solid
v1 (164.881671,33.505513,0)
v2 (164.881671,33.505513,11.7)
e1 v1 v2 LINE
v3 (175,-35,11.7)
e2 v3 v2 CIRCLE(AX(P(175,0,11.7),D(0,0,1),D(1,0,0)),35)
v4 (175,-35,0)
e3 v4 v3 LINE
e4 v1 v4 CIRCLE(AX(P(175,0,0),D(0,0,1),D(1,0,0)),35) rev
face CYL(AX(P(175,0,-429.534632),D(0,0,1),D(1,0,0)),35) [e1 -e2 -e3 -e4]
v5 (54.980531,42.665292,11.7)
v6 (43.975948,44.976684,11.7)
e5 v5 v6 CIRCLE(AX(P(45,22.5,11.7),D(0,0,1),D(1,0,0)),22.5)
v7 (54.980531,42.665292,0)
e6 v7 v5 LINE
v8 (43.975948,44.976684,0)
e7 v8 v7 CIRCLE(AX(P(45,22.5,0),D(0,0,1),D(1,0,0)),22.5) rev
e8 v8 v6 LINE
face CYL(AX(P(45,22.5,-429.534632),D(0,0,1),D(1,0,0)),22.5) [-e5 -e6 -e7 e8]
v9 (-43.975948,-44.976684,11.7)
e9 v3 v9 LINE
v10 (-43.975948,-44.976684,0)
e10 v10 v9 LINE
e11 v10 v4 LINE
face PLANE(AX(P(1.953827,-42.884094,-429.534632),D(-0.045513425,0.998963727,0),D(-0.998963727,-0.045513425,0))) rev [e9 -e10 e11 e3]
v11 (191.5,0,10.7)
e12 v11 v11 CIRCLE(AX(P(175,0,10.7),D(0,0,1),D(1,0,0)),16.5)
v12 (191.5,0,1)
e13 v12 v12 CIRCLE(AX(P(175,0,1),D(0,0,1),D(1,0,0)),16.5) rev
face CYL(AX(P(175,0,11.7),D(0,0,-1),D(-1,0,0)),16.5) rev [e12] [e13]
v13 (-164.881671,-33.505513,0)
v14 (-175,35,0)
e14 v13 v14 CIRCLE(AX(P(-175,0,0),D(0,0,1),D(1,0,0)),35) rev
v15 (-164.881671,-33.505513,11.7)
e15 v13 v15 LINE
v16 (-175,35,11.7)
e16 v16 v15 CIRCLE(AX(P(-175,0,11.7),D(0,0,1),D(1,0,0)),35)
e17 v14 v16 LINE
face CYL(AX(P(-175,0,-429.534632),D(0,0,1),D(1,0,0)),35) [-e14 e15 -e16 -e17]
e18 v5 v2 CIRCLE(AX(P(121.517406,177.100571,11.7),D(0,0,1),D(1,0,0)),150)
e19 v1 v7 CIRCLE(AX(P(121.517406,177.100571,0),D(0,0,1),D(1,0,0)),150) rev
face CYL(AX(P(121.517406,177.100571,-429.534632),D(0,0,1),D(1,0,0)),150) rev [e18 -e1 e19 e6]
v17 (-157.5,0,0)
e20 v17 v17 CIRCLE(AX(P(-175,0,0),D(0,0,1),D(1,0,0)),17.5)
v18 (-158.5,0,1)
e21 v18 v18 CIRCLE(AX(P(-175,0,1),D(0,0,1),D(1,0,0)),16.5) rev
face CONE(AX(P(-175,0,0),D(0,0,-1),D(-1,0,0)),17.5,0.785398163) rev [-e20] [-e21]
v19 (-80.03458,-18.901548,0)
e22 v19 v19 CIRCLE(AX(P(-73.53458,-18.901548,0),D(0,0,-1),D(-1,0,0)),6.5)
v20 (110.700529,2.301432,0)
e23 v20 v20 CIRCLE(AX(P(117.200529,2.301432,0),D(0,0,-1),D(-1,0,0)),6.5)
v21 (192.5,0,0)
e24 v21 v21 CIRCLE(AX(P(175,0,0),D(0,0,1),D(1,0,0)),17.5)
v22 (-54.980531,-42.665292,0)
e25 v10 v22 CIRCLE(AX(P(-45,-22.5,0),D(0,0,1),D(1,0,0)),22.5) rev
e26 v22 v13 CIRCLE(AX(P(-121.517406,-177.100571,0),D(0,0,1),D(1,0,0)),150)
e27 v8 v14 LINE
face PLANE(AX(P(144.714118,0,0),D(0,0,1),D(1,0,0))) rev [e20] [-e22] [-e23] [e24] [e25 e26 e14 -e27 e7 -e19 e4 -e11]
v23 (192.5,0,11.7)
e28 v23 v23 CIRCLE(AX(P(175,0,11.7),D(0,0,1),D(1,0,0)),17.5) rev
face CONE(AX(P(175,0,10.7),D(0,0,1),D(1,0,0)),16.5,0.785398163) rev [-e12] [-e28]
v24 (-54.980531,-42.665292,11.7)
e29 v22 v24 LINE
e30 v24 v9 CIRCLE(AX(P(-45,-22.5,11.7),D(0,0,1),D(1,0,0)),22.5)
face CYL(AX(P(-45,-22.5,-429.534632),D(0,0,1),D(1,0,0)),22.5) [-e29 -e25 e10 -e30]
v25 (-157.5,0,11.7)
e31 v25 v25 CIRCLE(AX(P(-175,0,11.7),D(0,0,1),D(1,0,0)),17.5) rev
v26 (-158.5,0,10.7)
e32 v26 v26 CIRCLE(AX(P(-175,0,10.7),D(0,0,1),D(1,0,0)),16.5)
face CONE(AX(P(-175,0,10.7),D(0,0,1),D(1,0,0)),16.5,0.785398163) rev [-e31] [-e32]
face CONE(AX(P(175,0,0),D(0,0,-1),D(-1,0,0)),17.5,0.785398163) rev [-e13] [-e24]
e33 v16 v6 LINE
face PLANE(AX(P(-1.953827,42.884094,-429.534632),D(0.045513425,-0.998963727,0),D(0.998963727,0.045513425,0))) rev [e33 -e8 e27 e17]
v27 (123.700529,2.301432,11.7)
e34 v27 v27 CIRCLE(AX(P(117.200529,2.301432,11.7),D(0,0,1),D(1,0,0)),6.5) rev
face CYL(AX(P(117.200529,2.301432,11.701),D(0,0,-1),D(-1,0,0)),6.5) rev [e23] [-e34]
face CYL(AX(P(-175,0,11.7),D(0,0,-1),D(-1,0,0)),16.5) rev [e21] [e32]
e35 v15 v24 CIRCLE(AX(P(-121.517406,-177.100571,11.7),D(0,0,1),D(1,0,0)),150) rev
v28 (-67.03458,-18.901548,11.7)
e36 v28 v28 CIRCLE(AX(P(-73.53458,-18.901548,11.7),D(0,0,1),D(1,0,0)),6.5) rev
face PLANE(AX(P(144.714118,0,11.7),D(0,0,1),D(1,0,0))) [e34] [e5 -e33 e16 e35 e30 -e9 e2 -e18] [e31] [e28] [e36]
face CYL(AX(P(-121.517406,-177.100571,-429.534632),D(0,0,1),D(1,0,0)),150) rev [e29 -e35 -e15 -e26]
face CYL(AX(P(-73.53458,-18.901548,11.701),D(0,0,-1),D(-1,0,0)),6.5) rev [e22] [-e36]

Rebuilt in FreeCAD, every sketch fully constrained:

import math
import FreeCAD as App
import Part
import Sketcher
Q = App.Units.Quantity


def edges_at(feature, points):
    """Names of the edges that pass closest to the given points."""
    edges = feature.Shape.Edges
    near = lambda p: min(range(len(edges)), key=lambda i: edges[i].distToShape(Part.Vertex(*p))[0])
    return sorted({f"Edge{near(p) + 1}" for p in points})

doc = App.newDocument("Part")
params = doc.addObject("Spreadsheet::Sheet", "Params")
for row, (alias, value) in enumerate([
    ("sketch1_diameter", "33 mm"),
    ("sketch1_width", "395 mm"),
    ("pad1_length", "11.7 mm"),
    ("sketch2_diameter", "33 mm"),
    ("sketch2_radius", "35 mm"),
    ("sketch2_radius2", "150 mm"),
    ("sketch2_radius3", "22.5 mm"),
    ("pad2_length", "11.7 mm"),
    ("sketch3_diameter", "70 mm"),
    ("sketch3_diameter2", "33 mm"),
    ("sketch3_diameter3", "45 mm"),
    ("pad3_length", "11.7 mm"),
    ("chamfer_size", "1 mm"),
    ("sketch4_diameter", "13 mm"),
    ("sketch5_diameter", "13 mm"),
], start=1):
    params.set(f"A{row}", alias)
    params.set(f"B{row}", "=" + value)
    params.setAlias(f"B{row}", alias)

body = doc.addObject("PartDesign::Body", "Body")

# Sketch on XY plane
sketch1 = body.newObject("Sketcher::SketchObject", "Sketch")
sketch1.AttachmentSupport = (doc.getObject("XY_Plane"), [""])
sketch1.MapMode = "FlatFace"
sketch1.addGeometry([
    Part.LineSegment(App.Vector(198, 25, 0), App.Vector(-198, 25, 0)),  # 0
    Part.ArcOfCircle(Part.Circle(App.Vector(-145, 0, 0), App.Vector(0, 0, 1), 58), math.radians(155), math.radians(205)),  # 1
    Part.LineSegment(App.Vector(-198, -25, 0), App.Vector(198, -25, 0)),  # 2
    Part.ArcOfCircle(Part.Circle(App.Vector(145, 0, 0), App.Vector(0, 0, 1), 58), math.radians(-25), math.radians(25)),  # 3
    Part.Circle(App.Vector(175, 0, 0), App.Vector(0, 0, 1), 16),  # 4
    Part.Circle(App.Vector(-175, 0, 0), App.Vector(0, 0, 1), 16),  # 5
], False)
sketch1.addConstraint([
    Sketcher.Constraint("Coincident", 0, 2, 1, 1),
    Sketcher.Constraint("Coincident", 1, 2, 2, 1),
    Sketcher.Constraint("Coincident", 2, 2, 3, 1),
    Sketcher.Constraint("Coincident", 3, 2, 0, 1),
    Sketcher.Constraint("Horizontal", 0),
    Sketcher.Constraint("Horizontal", 2),
    Sketcher.Constraint("Equal", 1, 3),
    Sketcher.Constraint("Equal", 4, 5),
    Sketcher.Constraint("Symmetric", 1, 3, 3, 3, -1, 1),
    Sketcher.Constraint("Symmetric", 4, 3, 5, 3, -1, 1),
    Sketcher.Constraint("Symmetric", 0, 2, 1, 2, -1),
    Sketcher.Constraint("PointOnObject", 4, 3, -1),
    Sketcher.Constraint("Diameter", 4, Q("33 mm")),
    Sketcher.Constraint("DistanceX", 0, 2, 0, 1, Q("395 mm")),
    Sketcher.Constraint("DistanceX", -1, 1, 4, 3, Q("175 mm")),
    Sketcher.Constraint("DistanceY", -1, 1, 0, 2, Q("25 mm")),
    Sketcher.Constraint("Radius", 1, Q("58.406757 mm")),
])
sketch1.setExpression("Constraints[12]", "Params.sketch1_diameter")
sketch1.setExpression("Constraints[13]", "Params.sketch1_width")
pad1 = body.newObject("PartDesign::Pad", "Pad")
pad1.Profile = sketch1
pad1.setExpression("Length", "Params.pad1_length")

# Sketch on XY plane
sketch2 = body.newObject("Sketcher::SketchObject", "Sketch001")
sketch2.AttachmentSupport = (doc.getObject("XY_Plane"), [""])
sketch2.MapMode = "FlatFace"
sketch2.addGeometry([
    Part.ArcOfCircle(Part.Circle(App.Vector(-175, 0, 0), App.Vector(0, 0, 1), 35), math.radians(90), math.radians(287)),  # 0
    Part.ArcOfCircle(Part.Circle(App.Vector(-122, -177, 0), App.Vector(0, 0, 1), 150), math.radians(64), math.radians(107)),  # 1
    Part.ArcOfCircle(Part.Circle(App.Vector(-45, -22, 0), App.Vector(0, 0, 1), 23), math.radians(-116), math.radians(-87)),  # 2
    Part.LineSegment(App.Vector(-44, -45, 0), App.Vector(175, -35, 0)),  # 3
    Part.ArcOfCircle(Part.Circle(App.Vector(175, 0, 0), App.Vector(0, 0, 1), 35), math.radians(-90), math.radians(0)),  # 4
    Part.ArcOfCircle(Part.Circle(App.Vector(175, 0, 0), App.Vector(0, 0, 1), 35), math.radians(0), math.radians(107)),  # 5
    Part.ArcOfCircle(Part.Circle(App.Vector(122, 177, 0), App.Vector(0, 0, 1), 150), math.radians(-116), math.radians(-73)),  # 6
    Part.ArcOfCircle(Part.Circle(App.Vector(45, 22, 0), App.Vector(0, 0, 1), 23), math.radians(64), math.radians(93)),  # 7
    Part.LineSegment(App.Vector(44, 45, 0), App.Vector(-175, 35, 0)),  # 8
    Part.Circle(App.Vector(-175, 0, 0), App.Vector(0, 0, 1), 16),  # 9
    Part.Circle(App.Vector(175, 0, 0), App.Vector(0, 0, 1), 16),  # 10
], False)
sketch2.addConstraint([
    Sketcher.Constraint("Tangent", 0, 2, 1, 2),
    Sketcher.Constraint("Tangent", 1, 1, 2, 1),
    Sketcher.Constraint("Tangent", 2, 2, 3, 1),
    Sketcher.Constraint("Coincident", 3, 2, 4, 1),
    Sketcher.Constraint("Tangent", 4, 2, 5, 1),
    Sketcher.Constraint("Tangent", 5, 2, 6, 2),
    Sketcher.Constraint("Tangent", 6, 1, 7, 1),
    Sketcher.Constraint("Tangent", 7, 2, 8, 1),
    Sketcher.Constraint("Coincident", 8, 2, 0, 1),
    Sketcher.Constraint("Coincident", 9, 3, 0, 3),
    Sketcher.Constraint("Coincident", 10, 3, 4, 3),
    Sketcher.Constraint("Equal", 0, 4),
    Sketcher.Constraint("Equal", 4, 5),
    Sketcher.Constraint("Equal", 1, 6),
    Sketcher.Constraint("Equal", 2, 7),
    Sketcher.Constraint("Equal", 9, 10),
    Sketcher.Constraint("Symmetric", 0, 3, 4, 3, -1, 1),
    Sketcher.Constraint("Symmetric", 2, 3, 7, 3, -1, 1),
    Sketcher.Constraint("PointOnObject", 0, 3, -1),
    Sketcher.Constraint("PointOnObject", 4, 2, -1),
    Sketcher.Constraint("Parallel", 3, 8),
    Sketcher.Constraint("Vertical", 10, 3, 3, 2),
    Sketcher.Constraint("Diameter", 9, Q("33 mm")),
    Sketcher.Constraint("Radius", 0, Q("35 mm")),
    Sketcher.Constraint("Radius", 1, Q("150 mm")),
    Sketcher.Constraint("Radius", 2, Q("22.5 mm")),
    Sketcher.Constraint("DistanceX", 0, 3, -1, 1, Q("175 mm")),
    Sketcher.Constraint("DistanceX", 2, 3, -1, 1, Q("45 mm")),
    Sketcher.Constraint("DistanceY", 2, 3, 7, 3, Q("45 mm")),
])
sketch2.setExpression("Constraints[22]", "Params.sketch2_diameter")
sketch2.setExpression("Constraints[23]", "Params.sketch2_radius")
sketch2.setExpression("Constraints[24]", "Params.sketch2_radius2")
sketch2.setExpression("Constraints[25]", "Params.sketch2_radius3")
pad2 = body.newObject("PartDesign::Pad", "Pad001")
pad2.Profile = sketch2
pad2.setExpression("Length", "Params.pad2_length")

# Sketch on XY plane
sketch3 = body.newObject("Sketcher::SketchObject", "Sketch002")
sketch3.AttachmentSupport = (doc.getObject("XY_Plane"), [""])
sketch3.MapMode = "FlatFace"
sketch3.addGeometry([
    Part.Circle(App.Vector(-175, 0, 0), App.Vector(0, 0, 1), 35),  # 0
    Part.Circle(App.Vector(-175, 0, 0), App.Vector(0, 0, 1), 16),  # 1
    Part.Circle(App.Vector(175, 0, 0), App.Vector(0, 0, 1), 35),  # 2
    Part.Circle(App.Vector(175, 0, 0), App.Vector(0, 0, 1), 16),  # 3
    Part.Circle(App.Vector(45, 22, 0), App.Vector(0, 0, 1), 22),  # 4
    Part.Circle(App.Vector(-45, -22, 0), App.Vector(0, 0, 1), 22),  # 5
], False)
sketch3.addConstraint([
    Sketcher.Constraint("Coincident", 1, 3, 0, 3),
    Sketcher.Constraint("Coincident", 3, 3, 2, 3),
    Sketcher.Constraint("Equal", 0, 2),
    Sketcher.Constraint("Equal", 1, 3),
    Sketcher.Constraint("Equal", 4, 5),
    Sketcher.Constraint("Symmetric", 0, 3, 2, 3, -1, 1),
    Sketcher.Constraint("Symmetric", 4, 3, 5, 3, -1, 1),
    Sketcher.Constraint("PointOnObject", 0, 3, -1),
    Sketcher.Constraint("Diameter", 0, Q("70 mm")),
    Sketcher.Constraint("Diameter", 1, Q("33 mm")),
    Sketcher.Constraint("Diameter", 4, Q("45 mm")),
    Sketcher.Constraint("DistanceX", 0, 3, -1, 1, Q("175 mm")),
    Sketcher.Constraint("DistanceX", -1, 1, 4, 3, Q("45 mm")),
    Sketcher.Constraint("DistanceY", 5, 3, 4, 3, Q("45 mm")),
])
sketch3.setExpression("Constraints[8]", "Params.sketch3_diameter")
sketch3.setExpression("Constraints[9]", "Params.sketch3_diameter2")
sketch3.setExpression("Constraints[10]", "Params.sketch3_diameter3")
pad3 = body.newObject("PartDesign::Pad", "Pad002")
pad3.Profile = sketch3
pad3.setExpression("Length", "Params.pad3_length")
doc.recompute()

chamfer = body.newObject("PartDesign::Chamfer", "Chamfer")
chamfer.Base = (pad3, edges_at(pad3, [
    (-191.5, 0, 0),
    (-191.5, 0, 11.7),
    (158.5, 0, 0),
    (158.5, 0, 11.7),
]))
chamfer.setExpression("Size", "Params.chamfer_size")

# Sketch on XY plane
sketch4 = body.newObject("Sketcher::SketchObject", "Sketch003")
sketch4.AttachmentSupport = (doc.getObject("XY_Plane"), [""])
sketch4.MapMode = "FlatFace"
sketch4.addGeometry(Part.Circle(App.Vector(-74, -19, 0), App.Vector(0, 0, 1), 6), False)
sketch4.addConstraint([
    Sketcher.Constraint("Diameter", 0, Q("13 mm")),
    Sketcher.Constraint("DistanceX", 0, 3, -1, 1, Q("73.53458 mm")),
    Sketcher.Constraint("DistanceY", 0, 3, -1, 1, Q("18.901548 mm")),
])
sketch4.setExpression("Constraints[0]", "Params.sketch4_diameter")
pocket1 = body.newObject("PartDesign::Pocket", "Pocket")
pocket1.Profile = sketch4
pocket1.Type = "UpToFirst"
pocket1.Reversed = True

# Sketch on XY plane
sketch5 = body.newObject("Sketcher::SketchObject", "Sketch004")
sketch5.AttachmentSupport = (doc.getObject("XY_Plane"), [""])
sketch5.MapMode = "FlatFace"
sketch5.addGeometry(Part.Circle(App.Vector(117, 2, 0), App.Vector(0, 0, 1), 6), False)
sketch5.addConstraint([
    Sketcher.Constraint("Diameter", 0, Q("13 mm")),
    Sketcher.Constraint("DistanceX", -1, 1, 0, 3, Q("117.200529 mm")),
    Sketcher.Constraint("DistanceY", -1, 1, 0, 3, Q("2.301432 mm")),
])
sketch5.setExpression("Constraints[0]", "Params.sketch5_diameter")
pocket2 = body.newObject("PartDesign::Pocket", "Pocket001")
pocket2.Profile = sketch5
pocket2.Type = "UpToFirst"
pocket2.Reversed = True

doc.recompute()
